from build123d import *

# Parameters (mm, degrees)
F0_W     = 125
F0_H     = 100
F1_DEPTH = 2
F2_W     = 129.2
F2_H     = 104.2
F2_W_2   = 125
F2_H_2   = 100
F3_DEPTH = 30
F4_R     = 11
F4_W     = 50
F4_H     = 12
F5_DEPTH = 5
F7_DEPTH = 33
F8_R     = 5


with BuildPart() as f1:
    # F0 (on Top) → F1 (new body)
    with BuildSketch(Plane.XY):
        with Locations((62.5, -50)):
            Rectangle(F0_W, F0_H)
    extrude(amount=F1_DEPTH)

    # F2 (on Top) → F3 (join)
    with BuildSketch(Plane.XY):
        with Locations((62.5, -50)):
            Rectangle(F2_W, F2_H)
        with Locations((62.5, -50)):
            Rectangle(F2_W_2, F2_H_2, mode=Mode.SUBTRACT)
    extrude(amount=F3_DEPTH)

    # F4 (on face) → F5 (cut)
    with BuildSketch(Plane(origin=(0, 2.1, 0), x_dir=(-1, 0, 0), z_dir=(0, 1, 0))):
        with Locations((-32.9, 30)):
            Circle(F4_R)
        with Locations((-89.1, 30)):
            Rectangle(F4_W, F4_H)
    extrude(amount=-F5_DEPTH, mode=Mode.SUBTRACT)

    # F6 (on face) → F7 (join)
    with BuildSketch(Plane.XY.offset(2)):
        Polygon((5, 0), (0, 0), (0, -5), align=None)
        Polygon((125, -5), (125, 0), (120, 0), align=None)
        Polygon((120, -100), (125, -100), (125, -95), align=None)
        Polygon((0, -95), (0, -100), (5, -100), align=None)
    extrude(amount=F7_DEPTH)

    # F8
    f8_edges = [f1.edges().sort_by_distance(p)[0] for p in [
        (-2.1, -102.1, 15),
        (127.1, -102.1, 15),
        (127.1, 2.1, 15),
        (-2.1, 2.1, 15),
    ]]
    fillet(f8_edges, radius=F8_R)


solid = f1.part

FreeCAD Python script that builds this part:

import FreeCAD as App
import Part
import Sketcher
from FreeCAD import Vector
Q = App.Units.Quantity


def edges_at(feature, points):
    """Names of the edges that pass closest to the given points."""
    edges = feature.Shape.Edges
    near = lambda p: min(range(len(edges)), key=lambda i: edges[i].distToShape(Part.Vertex(*p))[0])
    return sorted({f"Edge{near(p) + 1}" for p in points})

doc = App.newDocument("Part")
body = doc.addObject("PartDesign::Body", "Body")

sketch1 = doc.addObject("Sketcher::SketchObject", "Sketch")
body.addObject(sketch1)
sketch1.AttachmentSupport = (doc.XY_Plane, [""])
sketch1.MapMode = "FlatFace"
sketch1.addGeometry(Part.LineSegment(Vector(0, 0, 0), Vector(0, -100, 0)), False)
sketch1.addGeometry(Part.LineSegment(Vector(0, -100, 0), Vector(125, -100, 0)), False)
sketch1.addGeometry(Part.LineSegment(Vector(125, -100, 0), Vector(125, 0, 0)), False)
sketch1.addGeometry(Part.LineSegment(Vector(125, 0, 0), Vector(0, 0, 0)), False)
sketch1.addConstraint(Sketcher.Constraint("Coincident", 0, 2, 1, 1))
sketch1.addConstraint(Sketcher.Constraint("Coincident", 1, 2, 2, 1))
sketch1.addConstraint(Sketcher.Constraint("Coincident", 2, 2, 3, 1))
sketch1.addConstraint(Sketcher.Constraint("Coincident", 3, 2, 0, 1))
sketch1.addConstraint(Sketcher.Constraint("Vertical", 0))
sketch1.addConstraint(Sketcher.Constraint("Horizontal", 1))
sketch1.addConstraint(Sketcher.Constraint("Vertical", 2))
sketch1.addConstraint(Sketcher.Constraint("Horizontal", 3))
sketch1.addConstraint(Sketcher.Constraint("Coincident", 3, 2, -1, 1))
sketch1.addConstraint(Sketcher.Constraint("DistanceX", 1, 1, 1, 2, Q("125 mm")))
sketch1.addConstraint(Sketcher.Constraint("DistanceY", 0, 2, 0, 1, Q("100 mm")))
pad1 = doc.addObject("PartDesign::Pad", "Pad")
body.addObject(pad1)
pad1.Profile = sketch1
pad1.Length = 2

sketch2 = doc.addObject("Sketcher::SketchObject", "Sketch001")
body.addObject(sketch2)
sketch2.AttachmentSupport = (doc.XY_Plane, [""])
sketch2.MapMode = "FlatFace"
sketch2.addGeometry(Part.LineSegment(Vector(-2, 2, 0), Vector(-2, -102, 0)), False)
sketch2.addGeometry(Part.LineSegment(Vector(-2, -102, 0), Vector(127, -102, 0)), False)
sketch2.addGeometry(Part.LineSegment(Vector(127, -102, 0), Vector(127, 2, 0)), False)
sketch2.addGeometry(Part.LineSegment(Vector(127, 2, 0), Vector(-2, 2, 0)), False)
sketch2.addGeometry(Part.LineSegment(Vector(125, -100, 0), Vector(0, -100, 0)), False)
sketch2.addGeometry(Part.LineSegment(Vector(0, -100, 0), Vector(0, 0, 0)), False)
sketch2.addGeometry(Part.LineSegment(Vector(0, 0, 0), Vector(125, 0, 0)), False)
sketch2.addGeometry(Part.LineSegment(Vector(125, 0, 0), Vector(125, -100, 0)), False)
sketch2.addConstraint(Sketcher.Constraint("Coincident", 0, 2, 1, 1))
sketch2.addConstraint(Sketcher.Constraint("Coincident", 1, 2, 2, 1))
sketch2.addConstraint(Sketcher.Constraint("Coincident", 2, 2, 3, 1))
sketch2.addConstraint(Sketcher.Constraint("Coincident", 3, 2, 0, 1))
sketch2.addConstraint(Sketcher.Constraint("Coincident", 4, 2, 5, 1))
sketch2.addConstraint(Sketcher.Constraint("Coincident", 5, 2, 6, 1))
sketch2.addConstraint(Sketcher.Constraint("Coincident", 6, 2, 7, 1))
sketch2.addConstraint(Sketcher.Constraint("Coincident", 7, 2, 4, 1))
sketch2.addConstraint(Sketcher.Constraint("Vertical", 0))
sketch2.addConstraint(Sketcher.Constraint("Horizontal", 1))
sketch2.addConstraint(Sketcher.Constraint("Vertical", 2))
sketch2.addConstraint(Sketcher.Constraint("Horizontal", 3))
sketch2.addConstraint(Sketcher.Constraint("Horizontal", 4))
sketch2.addConstraint(Sketcher.Constraint("Vertical", 5))
sketch2.addConstraint(Sketcher.Constraint("Horizontal", 6))
sketch2.addConstraint(Sketcher.Constraint("Vertical", 7))
sketch2.addConstraint(Sketcher.Constraint("Coincident", 5, 2, -1, 1))
sketch2.addConstraint(Sketcher.Constraint("DistanceX", 4, 2, 4, 1, Q("125 mm")))
sketch2.addConstraint(Sketcher.Constraint("DistanceY", 5, 1, 5, 2, Q("100 mm")))
sketch2.addConstraint(Sketcher.Constraint("DistanceX", 1, 1, 1, 2, Q("129.2 mm")))
sketch2.addConstraint(Sketcher.Constraint("DistanceY", 0, 2, 0, 1, Q("104.2 mm")))
sketch2.addConstraint(Sketcher.Constraint("DistanceX", 0, 2, -1, 1, Q("2.1 mm")))
sketch2.addConstraint(Sketcher.Constraint("DistanceY", 0, 2, -1, 1, Q("102.1 mm")))
pad2 = doc.addObject("PartDesign::Pad", "Pad001")
body.addObject(pad2)
pad2.Profile = sketch2
pad2.Length = 30

sketch3 = doc.addObject("Sketcher::SketchObject", "Sketch002")
body.addObject(sketch3)
sketch3.AttachmentSupport = (doc.XZ_Plane, [""])
sketch3.MapMode = "FlatFace"
sketch3.AttachmentOffset = App.Placement(Vector(0, 0, -2.1), App.Rotation())
sketch3.addGeometry(Part.Circle(Vector(33, 30, 0), Vector(0, 0, 1), 11), False)
sketch3.addGeometry(Part.LineSegment(Vector(114, 36, 0), Vector(114, 24, 0)), False)
sketch3.addGeometry(Part.LineSegment(Vector(114, 24, 0), Vector(64, 24, 0)), False)
sketch3.addGeometry(Part.LineSegment(Vector(64, 24, 0), Vector(64, 36, 0)), False)
sketch3.addGeometry(Part.LineSegment(Vector(64, 36, 0), Vector(114, 36, 0)), False)
sketch3.addConstraint(Sketcher.Constraint("Coincident", 1, 2, 2, 1))
sketch3.addConstraint(Sketcher.Constraint("Coincident", 2, 2, 3, 1))
sketch3.addConstraint(Sketcher.Constraint("Coincident", 3, 2, 4, 1))
sketch3.addConstraint(Sketcher.Constraint("Coincident", 4, 2, 1, 1))
sketch3.addConstraint(Sketcher.Constraint("Vertical", 1))
sketch3.addConstraint(Sketcher.Constraint("Horizontal", 2))
sketch3.addConstraint(Sketcher.Constraint("Vertical", 3))
sketch3.addConstraint(Sketcher.Constraint("Horizontal", 4))
sketch3.addConstraint(Sketcher.Constraint("Diameter", 0, Q("22 mm")))
sketch3.addConstraint(Sketcher.Constraint("DistanceX", 2, 2, 2, 1, Q("50 mm")))
sketch3.addConstraint(Sketcher.Constraint("DistanceY", 1, 2, 1, 1, Q("12 mm")))
sketch3.addConstraint(Sketcher.Constraint("DistanceY", -1, 1, 0, 3, Q("30 mm")))
sketch3.addConstraint(Sketcher.Constraint("DistanceY", -1, 1, 1, 2, Q("24 mm")))
sketch3.addConstraint(Sketcher.Constraint("DistanceX", -1, 1, 0, 3, Q("32.9 mm")))
sketch3.addConstraint(Sketcher.Constraint("DistanceX", -1, 1, 1, 2, Q("114.1 mm")))
pocket1 = doc.addObject("PartDesign::Pocket", "Pocket")
body.addObject(pocket1)
pocket1.Profile = sketch3
pocket1.Length = 5
pocket1.Reversed = True

sketch4 = doc.addObject("Sketcher::SketchObject", "Sketch003")
body.addObject(sketch4)
sketch4.AttachmentSupport = (doc.XY_Plane, [""])
sketch4.MapMode = "FlatFace"
sketch4.AttachmentOffset = App.Placement(Vector(0, 0, 2), App.Rotation())
sketch4.addGeometry(Part.LineSegment(Vector(5, 0, 0), Vector(0, 0, 0)), False)
sketch4.addGeometry(Part.LineSegment(Vector(0, 0, 0), Vector(0, -5, 0)), False)
sketch4.addGeometry(Part.LineSegment(Vector(0, -5, 0), Vector(5, 0, 0)), False)
sketch4.addGeometry(Part.LineSegment(Vector(125, -5, 0), Vector(125, 0, 0)), False)
sketch4.addGeometry(Part.LineSegment(Vector(125, 0, 0), Vector(120, 0, 0)), False)
sketch4.addGeometry(Part.LineSegment(Vector(120, 0, 0), Vector(125, -5, 0)), False)
sketch4.addGeometry(Part.LineSegment(Vector(120, -100, 0), Vector(125, -100, 0)), False)
sketch4.addGeometry(Part.LineSegment(Vector(125, -100, 0), Vector(125, -95, 0)), False)
sketch4.addGeometry(Part.LineSegment(Vector(125, -95, 0), Vector(120, -100, 0)), False)
sketch4.addGeometry(Part.LineSegment(Vector(0, -95, 0), Vector(0, -100, 0)), False)
sketch4.addGeometry(Part.LineSegment(Vector(0, -100, 0), Vector(5, -100, 0)), False)
sketch4.addGeometry(Part.LineSegment(Vector(5, -100, 0), Vector(0, -95, 0)), False)
sketch4.addConstraint(Sketcher.Constraint("Coincident", 0, 2, 1, 1))
sketch4.addConstraint(Sketcher.Constraint("Coincident", 1, 2, 2, 1))
sketch4.addConstraint(Sketcher.Constraint("Coincident", 2, 2, 0, 1))
sketch4.addConstraint(Sketcher.Constraint("Coincident", 3, 2, 4, 1))
sketch4.addConstraint(Sketcher.Constraint("Coincident", 4, 2, 5, 1))
sketch4.addConstraint(Sketcher.Constraint("Coincident", 5, 2, 3, 1))
sketch4.addConstraint(Sketcher.Constraint("Coincident", 6, 2, 7, 1))
sketch4.addConstraint(Sketcher.Constraint("Coincident", 7, 2, 8, 1))
sketch4.addConstraint(Sketcher.Constraint("Coincident", 8, 2, 6, 1))
sketch4.addConstraint(Sketcher.Constraint("Coincident", 9, 2, 10, 1))
sketch4.addConstraint(Sketcher.Constraint("Coincident", 10, 2, 11, 1))
sketch4.addConstraint(Sketcher.Constraint("Coincident", 11, 2, 9, 1))
sketch4.addConstraint(Sketcher.Constraint("Horizontal", 0))
sketch4.addConstraint(Sketcher.Constraint("Vertical", 1))
sketch4.addConstraint(Sketcher.Constraint("Vertical", 3))
sketch4.addConstraint(Sketcher.Constraint("Horizontal", 4))
sketch4.addConstraint(Sketcher.Constraint("Horizontal", 6))
sketch4.addConstraint(Sketcher.Constraint("Vertical", 7))
sketch4.addConstraint(Sketcher.Constraint("Vertical", 9))
sketch4.addConstraint(Sketcher.Constraint("Horizontal", 10))
sketch4.addConstraint(Sketcher.Constraint("Coincident", 0, 2, -1, 1))
sketch4.addConstraint(Sketcher.Constraint("PointOnObject", 3, 2, -1))
sketch4.addConstraint(Sketcher.Constraint("PointOnObject", 9, 2, -2))
sketch4.addConstraint(Sketcher.Constraint("Perpendicular", 2, 5))
sketch4.addConstraint(Sketcher.Constraint("Perpendicular", 5, 8))
sketch4.addConstraint(Sketcher.Constraint("Perpendicular", 8, 11))
sketch4.addConstraint(Sketcher.Constraint("Horizontal", 1, 2, 5, 2))
sketch4.addConstraint(Sketcher.Constraint("Horizontal", 8, 2, 9, 2))
sketch4.addConstraint(Sketcher.Constraint("Horizontal", 7, 2, 11, 2))
sketch4.addConstraint(Sketcher.Constraint("Vertical", 5, 2, 6, 2))
sketch4.addConstraint(Sketcher.Constraint("Vertical", 4, 2, 8, 2))
sketch4.addConstraint(Sketcher.Constraint("Vertical", 2, 2, 10, 2))
sketch4.addConstraint(Sketcher.Constraint("DistanceX", 0, 2, 0, 1, Q("5 mm")))
sketch4.addConstraint(Sketcher.Constraint("DistanceX", -1, 1, 3, 2, Q("125 mm")))
sketch4.addConstraint(Sketcher.Constraint("DistanceY", 6, 2, -1, 1, Q("100 mm")))
pad3 = doc.addObject("PartDesign::Pad", "Pad002")
body.addObject(pad3)
pad3.Profile = sketch4
pad3.Length = 33
doc.recompute()

fillet = doc.addObject("PartDesign::Fillet", "Fillet")
body.addObject(fillet)
fillet.Base = (pad3, edges_at(pad3, [
    (-2.1, -102.1, 15),
    (127.1, -102.1, 15),
    (127.1, 2.1, 15),
    (-2.1, 2.1, 15),
]))
fillet.Radius = 5

doc.recompute()
